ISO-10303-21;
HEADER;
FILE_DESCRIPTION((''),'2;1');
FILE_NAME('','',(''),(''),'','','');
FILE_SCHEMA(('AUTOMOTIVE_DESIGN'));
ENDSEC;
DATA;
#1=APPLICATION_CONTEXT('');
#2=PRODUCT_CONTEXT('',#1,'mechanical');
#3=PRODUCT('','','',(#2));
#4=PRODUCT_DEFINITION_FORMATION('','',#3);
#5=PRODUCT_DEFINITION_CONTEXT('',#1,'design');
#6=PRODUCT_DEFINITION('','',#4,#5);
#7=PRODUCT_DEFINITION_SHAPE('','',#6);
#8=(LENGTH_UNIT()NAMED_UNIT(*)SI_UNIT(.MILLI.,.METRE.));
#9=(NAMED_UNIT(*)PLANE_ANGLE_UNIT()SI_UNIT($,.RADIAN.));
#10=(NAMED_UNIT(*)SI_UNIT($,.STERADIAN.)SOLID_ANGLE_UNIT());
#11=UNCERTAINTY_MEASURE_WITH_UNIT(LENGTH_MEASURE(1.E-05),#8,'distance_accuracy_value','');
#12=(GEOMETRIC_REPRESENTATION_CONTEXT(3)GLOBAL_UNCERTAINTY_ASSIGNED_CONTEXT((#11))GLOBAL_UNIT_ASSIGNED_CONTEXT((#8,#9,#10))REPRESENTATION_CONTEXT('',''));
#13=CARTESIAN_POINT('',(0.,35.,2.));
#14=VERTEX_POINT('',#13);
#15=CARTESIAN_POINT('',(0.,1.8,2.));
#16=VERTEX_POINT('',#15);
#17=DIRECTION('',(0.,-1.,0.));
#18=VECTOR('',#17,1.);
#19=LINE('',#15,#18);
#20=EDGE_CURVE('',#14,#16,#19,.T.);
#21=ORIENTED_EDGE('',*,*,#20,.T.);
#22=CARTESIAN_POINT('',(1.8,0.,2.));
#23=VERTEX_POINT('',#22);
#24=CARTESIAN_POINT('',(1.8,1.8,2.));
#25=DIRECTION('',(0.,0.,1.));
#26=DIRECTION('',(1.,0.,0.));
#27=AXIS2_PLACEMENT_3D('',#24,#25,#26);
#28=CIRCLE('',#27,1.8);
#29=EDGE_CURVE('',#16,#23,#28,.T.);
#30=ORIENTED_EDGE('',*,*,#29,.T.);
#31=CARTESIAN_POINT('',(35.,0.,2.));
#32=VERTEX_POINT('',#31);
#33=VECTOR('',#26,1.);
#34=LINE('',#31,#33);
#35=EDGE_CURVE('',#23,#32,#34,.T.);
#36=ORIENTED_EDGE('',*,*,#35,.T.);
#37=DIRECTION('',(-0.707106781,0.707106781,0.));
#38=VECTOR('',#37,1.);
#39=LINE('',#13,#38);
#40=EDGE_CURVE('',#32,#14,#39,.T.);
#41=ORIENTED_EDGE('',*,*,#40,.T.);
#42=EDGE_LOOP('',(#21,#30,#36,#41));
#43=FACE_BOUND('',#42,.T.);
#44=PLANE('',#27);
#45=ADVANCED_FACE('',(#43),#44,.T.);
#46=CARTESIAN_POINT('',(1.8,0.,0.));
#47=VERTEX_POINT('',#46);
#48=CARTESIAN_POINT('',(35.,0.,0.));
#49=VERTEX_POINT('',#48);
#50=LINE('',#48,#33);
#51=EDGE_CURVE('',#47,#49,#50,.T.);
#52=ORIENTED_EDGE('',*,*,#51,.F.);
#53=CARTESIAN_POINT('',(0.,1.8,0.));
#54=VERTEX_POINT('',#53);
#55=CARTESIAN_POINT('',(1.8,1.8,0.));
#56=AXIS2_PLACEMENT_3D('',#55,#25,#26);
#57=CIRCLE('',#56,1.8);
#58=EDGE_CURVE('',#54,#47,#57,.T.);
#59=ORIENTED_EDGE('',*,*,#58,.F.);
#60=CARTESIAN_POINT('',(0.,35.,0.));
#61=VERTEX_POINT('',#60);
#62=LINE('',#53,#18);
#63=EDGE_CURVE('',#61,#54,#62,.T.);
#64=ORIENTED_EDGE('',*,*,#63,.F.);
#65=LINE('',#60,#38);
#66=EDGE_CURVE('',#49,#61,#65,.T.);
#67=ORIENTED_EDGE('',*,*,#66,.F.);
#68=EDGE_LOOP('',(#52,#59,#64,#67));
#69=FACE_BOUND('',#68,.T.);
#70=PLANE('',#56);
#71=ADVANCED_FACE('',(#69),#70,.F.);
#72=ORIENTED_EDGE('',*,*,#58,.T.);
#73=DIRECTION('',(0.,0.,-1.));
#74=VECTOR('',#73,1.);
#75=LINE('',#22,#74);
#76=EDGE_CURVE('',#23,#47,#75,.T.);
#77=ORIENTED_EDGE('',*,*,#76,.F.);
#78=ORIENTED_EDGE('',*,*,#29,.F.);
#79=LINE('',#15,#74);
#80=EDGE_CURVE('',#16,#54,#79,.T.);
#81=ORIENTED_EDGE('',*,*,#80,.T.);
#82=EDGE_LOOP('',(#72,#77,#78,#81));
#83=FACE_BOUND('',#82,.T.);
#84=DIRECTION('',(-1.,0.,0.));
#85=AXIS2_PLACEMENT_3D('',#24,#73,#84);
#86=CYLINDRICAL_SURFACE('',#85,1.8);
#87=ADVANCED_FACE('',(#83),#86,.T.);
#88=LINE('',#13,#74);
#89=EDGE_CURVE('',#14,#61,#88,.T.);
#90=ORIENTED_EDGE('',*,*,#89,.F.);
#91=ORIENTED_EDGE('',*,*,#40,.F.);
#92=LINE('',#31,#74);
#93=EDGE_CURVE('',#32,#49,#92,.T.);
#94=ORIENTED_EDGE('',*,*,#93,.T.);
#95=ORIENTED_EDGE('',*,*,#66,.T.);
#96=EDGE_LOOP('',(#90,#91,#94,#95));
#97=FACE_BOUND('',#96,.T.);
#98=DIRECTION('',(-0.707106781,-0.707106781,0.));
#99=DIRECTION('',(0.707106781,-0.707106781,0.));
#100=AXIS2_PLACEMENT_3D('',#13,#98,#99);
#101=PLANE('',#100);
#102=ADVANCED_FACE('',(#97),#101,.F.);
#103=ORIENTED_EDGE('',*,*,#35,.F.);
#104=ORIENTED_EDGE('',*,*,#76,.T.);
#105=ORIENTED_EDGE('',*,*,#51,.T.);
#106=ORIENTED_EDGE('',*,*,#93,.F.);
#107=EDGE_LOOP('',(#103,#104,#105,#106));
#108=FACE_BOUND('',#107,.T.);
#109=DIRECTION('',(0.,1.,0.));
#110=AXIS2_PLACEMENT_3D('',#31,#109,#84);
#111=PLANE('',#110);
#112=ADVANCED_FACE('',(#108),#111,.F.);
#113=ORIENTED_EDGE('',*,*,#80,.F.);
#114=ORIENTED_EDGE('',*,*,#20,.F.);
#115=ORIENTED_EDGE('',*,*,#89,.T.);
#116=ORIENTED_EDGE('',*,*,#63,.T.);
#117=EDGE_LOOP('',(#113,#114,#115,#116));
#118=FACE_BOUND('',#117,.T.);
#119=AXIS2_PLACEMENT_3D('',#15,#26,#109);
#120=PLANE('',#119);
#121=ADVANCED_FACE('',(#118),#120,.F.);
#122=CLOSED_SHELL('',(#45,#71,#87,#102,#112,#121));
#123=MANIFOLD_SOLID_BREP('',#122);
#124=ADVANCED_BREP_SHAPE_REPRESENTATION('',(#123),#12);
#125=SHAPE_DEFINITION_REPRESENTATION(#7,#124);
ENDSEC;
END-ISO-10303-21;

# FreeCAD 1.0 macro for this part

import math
import FreeCAD as App
import Part
import Sketcher

V = App.Vector
Q = App.Units.Quantity

doc = App.newDocument("Part")
body = doc.addObject("PartDesign::Body", "Body")

sketch1 = body.newObject("Sketcher::SketchObject", "Sketch")
sketch1.AttachmentSupport = (doc.getObject("XY_Plane"), [""])
sketch1.MapMode = "FlatFace"
sketch1.addGeometry([
    Part.LineSegment(V(0, 35, 0), V(0, 1.8, 0)),
    Part.ArcOfCircle(Part.Circle(V(1.8, 1.8, 0), V(0, 0, 1), 1.8), math.radians(180), math.radians(270)),
    Part.LineSegment(V(1.8, 0, 0), V(35, 0, 0)),
    Part.LineSegment(V(35, 0, 0), V(0, 35, 0)),
], False)
sketch1.addConstraint([
    Sketcher.Constraint("Tangent", 0, 2, 1, 1),
    Sketcher.Constraint("Tangent", 1, 2, 2, 1),
    Sketcher.Constraint("Coincident", 2, 2, 3, 1),
    Sketcher.Constraint("Coincident", 3, 2, 0, 1),
    Sketcher.Constraint("Vertical", 0),
    Sketcher.Constraint("Horizontal", 2),
    Sketcher.Constraint("PointOnObject", 0, 2, -2),
    Sketcher.Constraint("PointOnObject", 1, 2, -1),
    Sketcher.Constraint("Equal", 2, 0),
    Sketcher.Constraint("Radius", 1, Q("1.8 mm")),
    Sketcher.Constraint("DistanceX", 2, 1, 2, 2, Q("33.2 mm")),
])
pad1 = body.newObject("PartDesign::Pad", "Pad")
pad1.Profile = sketch1
pad1.Length = 2

doc.recompute()
